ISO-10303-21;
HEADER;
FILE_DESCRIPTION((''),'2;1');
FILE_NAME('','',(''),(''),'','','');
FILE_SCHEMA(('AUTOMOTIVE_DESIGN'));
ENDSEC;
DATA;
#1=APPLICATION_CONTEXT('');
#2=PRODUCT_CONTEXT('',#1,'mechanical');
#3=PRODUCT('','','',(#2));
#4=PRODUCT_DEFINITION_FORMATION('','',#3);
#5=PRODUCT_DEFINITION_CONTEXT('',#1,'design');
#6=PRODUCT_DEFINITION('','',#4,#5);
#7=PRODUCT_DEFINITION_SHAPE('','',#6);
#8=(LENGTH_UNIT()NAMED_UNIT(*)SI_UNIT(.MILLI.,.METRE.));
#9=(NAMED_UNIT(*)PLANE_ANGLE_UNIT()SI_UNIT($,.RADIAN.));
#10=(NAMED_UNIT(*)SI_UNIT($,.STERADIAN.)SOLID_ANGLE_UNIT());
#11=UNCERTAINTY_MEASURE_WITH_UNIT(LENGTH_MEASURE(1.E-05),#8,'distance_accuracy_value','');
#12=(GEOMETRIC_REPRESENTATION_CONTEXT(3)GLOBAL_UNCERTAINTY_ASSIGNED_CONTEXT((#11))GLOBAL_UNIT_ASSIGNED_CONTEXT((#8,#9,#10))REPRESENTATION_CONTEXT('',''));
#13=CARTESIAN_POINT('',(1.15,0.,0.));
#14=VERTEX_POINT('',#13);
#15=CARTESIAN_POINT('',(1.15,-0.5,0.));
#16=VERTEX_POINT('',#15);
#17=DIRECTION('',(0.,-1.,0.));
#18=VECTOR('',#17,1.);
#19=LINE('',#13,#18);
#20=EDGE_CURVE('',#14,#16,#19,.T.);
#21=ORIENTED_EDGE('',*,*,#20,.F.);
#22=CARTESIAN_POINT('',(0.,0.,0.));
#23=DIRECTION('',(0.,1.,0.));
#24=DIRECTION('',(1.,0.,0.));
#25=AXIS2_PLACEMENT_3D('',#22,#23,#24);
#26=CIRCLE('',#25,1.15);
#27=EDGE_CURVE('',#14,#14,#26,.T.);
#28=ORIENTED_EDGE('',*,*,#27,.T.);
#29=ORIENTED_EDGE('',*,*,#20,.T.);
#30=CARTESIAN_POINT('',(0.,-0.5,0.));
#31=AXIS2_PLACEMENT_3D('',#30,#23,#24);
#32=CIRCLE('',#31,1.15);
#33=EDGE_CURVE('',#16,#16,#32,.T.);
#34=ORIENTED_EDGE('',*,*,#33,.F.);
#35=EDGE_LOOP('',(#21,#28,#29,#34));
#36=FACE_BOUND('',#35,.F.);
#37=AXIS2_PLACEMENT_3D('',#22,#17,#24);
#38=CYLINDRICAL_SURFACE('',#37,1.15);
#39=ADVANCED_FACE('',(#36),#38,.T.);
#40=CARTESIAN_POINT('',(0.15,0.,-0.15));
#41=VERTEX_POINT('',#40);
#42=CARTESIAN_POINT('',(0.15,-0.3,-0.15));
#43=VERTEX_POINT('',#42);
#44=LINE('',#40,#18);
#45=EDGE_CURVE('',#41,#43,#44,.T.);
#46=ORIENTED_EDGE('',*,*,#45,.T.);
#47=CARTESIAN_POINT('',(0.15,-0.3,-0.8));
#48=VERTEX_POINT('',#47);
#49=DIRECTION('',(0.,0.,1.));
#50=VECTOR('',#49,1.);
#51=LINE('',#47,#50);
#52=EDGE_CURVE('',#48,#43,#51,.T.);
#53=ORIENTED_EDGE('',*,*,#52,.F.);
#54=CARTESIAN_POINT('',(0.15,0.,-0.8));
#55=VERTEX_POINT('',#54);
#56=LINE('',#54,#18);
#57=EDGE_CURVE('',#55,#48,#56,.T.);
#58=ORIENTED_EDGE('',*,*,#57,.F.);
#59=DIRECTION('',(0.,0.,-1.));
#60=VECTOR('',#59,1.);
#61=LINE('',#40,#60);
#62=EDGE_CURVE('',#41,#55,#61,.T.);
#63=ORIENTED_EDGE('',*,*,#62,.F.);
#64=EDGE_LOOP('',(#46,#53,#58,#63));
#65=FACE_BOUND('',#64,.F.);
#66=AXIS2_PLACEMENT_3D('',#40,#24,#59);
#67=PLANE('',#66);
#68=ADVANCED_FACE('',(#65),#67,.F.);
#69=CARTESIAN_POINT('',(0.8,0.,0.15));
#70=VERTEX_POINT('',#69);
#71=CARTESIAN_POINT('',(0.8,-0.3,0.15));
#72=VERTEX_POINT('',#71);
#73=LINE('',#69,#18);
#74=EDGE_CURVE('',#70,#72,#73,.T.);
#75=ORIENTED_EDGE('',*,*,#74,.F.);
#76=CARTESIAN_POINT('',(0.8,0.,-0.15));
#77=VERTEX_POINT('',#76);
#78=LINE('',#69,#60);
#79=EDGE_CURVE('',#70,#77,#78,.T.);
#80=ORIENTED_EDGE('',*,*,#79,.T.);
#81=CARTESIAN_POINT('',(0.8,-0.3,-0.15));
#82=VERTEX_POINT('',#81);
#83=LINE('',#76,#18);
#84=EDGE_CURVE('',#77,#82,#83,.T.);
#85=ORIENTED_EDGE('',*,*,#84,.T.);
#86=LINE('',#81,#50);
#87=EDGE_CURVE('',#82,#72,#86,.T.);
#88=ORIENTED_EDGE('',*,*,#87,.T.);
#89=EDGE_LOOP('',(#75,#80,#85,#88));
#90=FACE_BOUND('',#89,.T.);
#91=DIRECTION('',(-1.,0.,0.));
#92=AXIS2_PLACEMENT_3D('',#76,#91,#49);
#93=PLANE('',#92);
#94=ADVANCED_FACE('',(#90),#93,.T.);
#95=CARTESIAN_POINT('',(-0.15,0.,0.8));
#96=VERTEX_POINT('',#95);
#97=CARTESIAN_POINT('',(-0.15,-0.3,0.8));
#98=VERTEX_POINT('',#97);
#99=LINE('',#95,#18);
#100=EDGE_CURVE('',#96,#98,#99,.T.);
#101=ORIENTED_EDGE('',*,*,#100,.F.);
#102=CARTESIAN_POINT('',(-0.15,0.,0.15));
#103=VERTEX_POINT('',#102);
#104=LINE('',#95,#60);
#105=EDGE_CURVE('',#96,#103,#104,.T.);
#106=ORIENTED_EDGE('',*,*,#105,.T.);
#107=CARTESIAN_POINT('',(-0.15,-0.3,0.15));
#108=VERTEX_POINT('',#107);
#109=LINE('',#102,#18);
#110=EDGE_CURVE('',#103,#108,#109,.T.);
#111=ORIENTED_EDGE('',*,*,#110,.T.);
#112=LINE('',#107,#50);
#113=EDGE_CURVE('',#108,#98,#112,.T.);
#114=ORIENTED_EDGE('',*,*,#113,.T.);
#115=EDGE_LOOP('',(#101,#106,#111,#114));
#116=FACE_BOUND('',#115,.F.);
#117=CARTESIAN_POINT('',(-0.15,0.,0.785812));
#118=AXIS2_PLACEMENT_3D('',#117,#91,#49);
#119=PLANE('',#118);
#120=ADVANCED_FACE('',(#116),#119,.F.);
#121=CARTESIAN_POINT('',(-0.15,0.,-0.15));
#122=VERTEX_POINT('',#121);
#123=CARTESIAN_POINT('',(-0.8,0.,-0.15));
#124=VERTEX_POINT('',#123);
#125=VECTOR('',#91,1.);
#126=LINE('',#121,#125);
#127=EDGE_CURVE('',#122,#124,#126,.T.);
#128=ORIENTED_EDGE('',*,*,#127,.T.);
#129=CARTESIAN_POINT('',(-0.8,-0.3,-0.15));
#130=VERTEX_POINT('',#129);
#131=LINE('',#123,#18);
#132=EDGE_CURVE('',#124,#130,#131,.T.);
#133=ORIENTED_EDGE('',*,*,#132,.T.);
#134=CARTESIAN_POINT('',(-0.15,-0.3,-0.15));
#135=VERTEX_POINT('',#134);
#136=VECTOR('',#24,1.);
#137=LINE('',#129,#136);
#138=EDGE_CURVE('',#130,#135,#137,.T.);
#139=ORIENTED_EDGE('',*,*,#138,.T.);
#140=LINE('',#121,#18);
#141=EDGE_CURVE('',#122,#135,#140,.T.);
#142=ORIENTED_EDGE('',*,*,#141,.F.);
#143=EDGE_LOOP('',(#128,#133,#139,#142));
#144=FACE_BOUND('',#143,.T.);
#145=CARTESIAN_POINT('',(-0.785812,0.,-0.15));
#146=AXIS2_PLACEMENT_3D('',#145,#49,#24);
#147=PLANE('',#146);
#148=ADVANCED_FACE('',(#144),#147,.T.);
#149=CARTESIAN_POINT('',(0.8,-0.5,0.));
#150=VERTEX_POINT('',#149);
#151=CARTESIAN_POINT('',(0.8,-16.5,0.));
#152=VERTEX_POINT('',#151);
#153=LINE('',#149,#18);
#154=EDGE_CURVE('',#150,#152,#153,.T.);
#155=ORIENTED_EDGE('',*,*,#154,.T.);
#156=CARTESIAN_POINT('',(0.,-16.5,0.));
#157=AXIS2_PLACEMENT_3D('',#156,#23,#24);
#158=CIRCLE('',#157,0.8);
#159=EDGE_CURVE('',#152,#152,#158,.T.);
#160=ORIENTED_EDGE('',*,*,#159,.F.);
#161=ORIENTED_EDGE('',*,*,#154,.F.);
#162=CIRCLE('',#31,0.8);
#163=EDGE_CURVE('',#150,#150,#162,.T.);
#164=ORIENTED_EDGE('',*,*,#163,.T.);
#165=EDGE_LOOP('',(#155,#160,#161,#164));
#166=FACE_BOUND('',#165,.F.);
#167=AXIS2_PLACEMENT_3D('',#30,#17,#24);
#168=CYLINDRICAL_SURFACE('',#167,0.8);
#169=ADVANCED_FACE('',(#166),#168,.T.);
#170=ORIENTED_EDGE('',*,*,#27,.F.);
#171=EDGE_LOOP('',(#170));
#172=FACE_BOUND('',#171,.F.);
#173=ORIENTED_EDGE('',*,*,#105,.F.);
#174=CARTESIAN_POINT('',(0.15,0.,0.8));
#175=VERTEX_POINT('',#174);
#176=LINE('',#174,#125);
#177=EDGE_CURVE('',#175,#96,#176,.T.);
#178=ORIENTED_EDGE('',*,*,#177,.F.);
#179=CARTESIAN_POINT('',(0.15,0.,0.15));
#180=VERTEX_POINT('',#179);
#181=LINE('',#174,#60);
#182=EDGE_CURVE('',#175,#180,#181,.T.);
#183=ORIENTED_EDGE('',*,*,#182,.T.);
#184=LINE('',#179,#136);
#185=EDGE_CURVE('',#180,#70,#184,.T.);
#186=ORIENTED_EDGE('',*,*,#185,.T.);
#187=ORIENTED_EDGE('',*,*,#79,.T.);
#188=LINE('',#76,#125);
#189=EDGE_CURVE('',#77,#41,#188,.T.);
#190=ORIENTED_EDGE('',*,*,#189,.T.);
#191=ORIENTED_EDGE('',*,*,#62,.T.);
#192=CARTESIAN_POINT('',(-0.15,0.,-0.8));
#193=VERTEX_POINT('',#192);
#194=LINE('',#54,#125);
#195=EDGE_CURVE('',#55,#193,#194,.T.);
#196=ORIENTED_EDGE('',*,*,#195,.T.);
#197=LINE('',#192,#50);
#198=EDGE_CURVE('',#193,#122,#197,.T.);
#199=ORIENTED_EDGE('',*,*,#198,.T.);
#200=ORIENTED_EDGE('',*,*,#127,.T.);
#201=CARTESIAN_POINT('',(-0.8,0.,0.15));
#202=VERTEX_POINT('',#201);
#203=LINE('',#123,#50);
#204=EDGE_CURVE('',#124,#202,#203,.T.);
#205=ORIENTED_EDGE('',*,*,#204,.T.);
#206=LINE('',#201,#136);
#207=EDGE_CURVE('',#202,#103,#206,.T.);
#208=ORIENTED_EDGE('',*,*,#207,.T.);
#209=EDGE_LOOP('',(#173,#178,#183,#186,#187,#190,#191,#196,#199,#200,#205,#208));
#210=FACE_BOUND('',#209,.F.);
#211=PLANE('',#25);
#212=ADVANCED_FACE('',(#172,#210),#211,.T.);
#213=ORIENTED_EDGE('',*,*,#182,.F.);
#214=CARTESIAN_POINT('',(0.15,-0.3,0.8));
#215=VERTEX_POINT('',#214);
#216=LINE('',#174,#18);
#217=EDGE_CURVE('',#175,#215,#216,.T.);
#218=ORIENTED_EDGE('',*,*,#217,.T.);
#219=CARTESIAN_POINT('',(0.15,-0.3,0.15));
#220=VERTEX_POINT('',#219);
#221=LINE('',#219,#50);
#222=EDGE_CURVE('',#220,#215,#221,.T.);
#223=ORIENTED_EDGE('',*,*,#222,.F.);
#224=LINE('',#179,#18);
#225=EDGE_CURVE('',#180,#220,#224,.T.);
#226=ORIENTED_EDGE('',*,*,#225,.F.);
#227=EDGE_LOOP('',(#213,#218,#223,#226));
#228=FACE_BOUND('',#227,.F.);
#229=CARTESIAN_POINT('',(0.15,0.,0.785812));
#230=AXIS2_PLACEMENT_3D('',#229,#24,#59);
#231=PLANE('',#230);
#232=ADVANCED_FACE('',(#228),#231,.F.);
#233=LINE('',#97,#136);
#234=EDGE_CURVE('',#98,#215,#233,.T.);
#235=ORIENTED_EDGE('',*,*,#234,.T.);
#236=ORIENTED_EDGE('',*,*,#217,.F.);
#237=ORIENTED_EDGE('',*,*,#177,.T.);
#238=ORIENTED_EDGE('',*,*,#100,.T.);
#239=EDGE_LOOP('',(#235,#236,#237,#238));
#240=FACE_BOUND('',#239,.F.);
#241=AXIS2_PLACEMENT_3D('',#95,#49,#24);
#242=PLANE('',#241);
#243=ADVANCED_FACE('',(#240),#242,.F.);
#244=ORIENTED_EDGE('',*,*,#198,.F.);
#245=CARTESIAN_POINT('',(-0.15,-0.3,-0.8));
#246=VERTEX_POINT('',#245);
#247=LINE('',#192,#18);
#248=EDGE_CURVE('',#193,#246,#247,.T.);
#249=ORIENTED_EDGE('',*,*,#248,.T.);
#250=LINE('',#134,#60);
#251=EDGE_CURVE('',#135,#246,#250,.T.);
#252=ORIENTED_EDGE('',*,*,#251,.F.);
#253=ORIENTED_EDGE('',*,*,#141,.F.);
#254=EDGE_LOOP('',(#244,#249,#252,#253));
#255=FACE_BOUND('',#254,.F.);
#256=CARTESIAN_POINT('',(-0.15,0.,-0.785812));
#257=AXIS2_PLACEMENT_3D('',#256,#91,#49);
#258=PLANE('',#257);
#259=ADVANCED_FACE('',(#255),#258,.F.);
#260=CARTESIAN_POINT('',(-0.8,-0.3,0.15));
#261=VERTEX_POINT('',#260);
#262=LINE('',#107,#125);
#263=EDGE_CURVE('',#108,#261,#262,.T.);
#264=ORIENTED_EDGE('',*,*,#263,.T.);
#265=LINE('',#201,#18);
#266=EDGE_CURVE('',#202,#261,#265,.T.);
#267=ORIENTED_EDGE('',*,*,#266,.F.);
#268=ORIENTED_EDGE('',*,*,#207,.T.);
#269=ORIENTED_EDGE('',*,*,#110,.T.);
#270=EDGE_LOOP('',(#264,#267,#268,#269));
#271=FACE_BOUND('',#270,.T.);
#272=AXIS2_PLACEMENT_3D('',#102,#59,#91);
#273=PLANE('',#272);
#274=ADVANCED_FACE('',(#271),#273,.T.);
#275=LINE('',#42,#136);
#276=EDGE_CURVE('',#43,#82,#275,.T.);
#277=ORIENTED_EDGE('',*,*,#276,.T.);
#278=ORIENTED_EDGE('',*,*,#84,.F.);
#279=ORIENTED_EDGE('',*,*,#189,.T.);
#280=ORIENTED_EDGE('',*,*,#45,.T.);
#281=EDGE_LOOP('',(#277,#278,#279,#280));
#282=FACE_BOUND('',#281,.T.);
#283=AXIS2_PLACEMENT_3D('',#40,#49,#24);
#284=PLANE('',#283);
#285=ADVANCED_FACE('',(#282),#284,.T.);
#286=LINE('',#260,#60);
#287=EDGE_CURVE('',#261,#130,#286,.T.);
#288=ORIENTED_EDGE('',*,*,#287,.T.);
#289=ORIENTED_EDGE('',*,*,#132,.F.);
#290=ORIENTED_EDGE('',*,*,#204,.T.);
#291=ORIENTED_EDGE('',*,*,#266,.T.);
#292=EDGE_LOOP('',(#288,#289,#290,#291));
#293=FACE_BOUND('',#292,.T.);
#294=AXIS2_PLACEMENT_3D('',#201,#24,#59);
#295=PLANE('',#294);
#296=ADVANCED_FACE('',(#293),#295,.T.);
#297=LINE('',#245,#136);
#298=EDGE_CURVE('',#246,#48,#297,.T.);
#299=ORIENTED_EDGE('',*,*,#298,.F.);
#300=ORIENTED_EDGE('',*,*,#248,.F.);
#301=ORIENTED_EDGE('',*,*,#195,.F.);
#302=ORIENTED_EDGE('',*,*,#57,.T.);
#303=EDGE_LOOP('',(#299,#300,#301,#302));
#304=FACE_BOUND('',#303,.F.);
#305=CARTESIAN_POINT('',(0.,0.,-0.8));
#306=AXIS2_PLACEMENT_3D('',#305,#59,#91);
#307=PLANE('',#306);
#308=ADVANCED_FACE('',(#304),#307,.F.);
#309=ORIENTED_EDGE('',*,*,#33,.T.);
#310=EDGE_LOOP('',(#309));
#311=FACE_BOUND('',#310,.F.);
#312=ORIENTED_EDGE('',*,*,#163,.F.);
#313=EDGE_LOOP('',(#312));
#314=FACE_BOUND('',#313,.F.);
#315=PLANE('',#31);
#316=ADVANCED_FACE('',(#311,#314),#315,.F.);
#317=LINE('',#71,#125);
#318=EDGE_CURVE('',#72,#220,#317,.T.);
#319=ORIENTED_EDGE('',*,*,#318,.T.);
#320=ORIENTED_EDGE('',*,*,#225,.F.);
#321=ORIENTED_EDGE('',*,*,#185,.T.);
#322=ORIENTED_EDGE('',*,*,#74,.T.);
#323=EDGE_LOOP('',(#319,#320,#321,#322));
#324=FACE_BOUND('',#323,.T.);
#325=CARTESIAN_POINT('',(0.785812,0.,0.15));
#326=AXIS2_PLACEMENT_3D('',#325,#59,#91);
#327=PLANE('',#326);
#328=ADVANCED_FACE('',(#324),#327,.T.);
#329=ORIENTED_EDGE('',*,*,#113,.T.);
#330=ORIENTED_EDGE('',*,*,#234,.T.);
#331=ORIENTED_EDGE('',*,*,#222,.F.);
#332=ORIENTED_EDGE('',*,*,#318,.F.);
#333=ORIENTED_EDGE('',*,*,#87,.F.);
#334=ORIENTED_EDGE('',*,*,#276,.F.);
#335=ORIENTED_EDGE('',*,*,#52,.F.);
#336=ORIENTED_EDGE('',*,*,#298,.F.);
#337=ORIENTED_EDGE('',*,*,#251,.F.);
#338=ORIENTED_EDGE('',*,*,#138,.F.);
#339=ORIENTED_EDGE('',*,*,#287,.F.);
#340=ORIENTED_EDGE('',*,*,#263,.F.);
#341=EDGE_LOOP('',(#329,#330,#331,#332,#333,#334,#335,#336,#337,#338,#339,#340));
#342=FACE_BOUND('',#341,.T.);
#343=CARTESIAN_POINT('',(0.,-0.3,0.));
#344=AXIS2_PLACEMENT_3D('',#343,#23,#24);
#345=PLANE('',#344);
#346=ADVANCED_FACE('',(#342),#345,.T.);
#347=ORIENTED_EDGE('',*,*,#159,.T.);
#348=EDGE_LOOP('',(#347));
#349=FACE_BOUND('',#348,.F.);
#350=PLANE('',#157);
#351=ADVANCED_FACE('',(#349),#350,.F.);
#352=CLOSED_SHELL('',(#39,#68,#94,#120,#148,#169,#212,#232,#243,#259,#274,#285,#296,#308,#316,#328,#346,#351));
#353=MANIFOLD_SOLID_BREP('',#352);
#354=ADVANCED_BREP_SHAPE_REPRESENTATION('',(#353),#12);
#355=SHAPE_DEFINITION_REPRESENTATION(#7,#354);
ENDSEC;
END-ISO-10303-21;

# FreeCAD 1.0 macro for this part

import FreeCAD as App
import Part
import Sketcher
Q = App.Units.Quantity

doc = App.newDocument("Part")
params = doc.addObject("Spreadsheet::Sheet", "Params")
for row, (alias, value) in enumerate([
    ("sketch1_height", "16 mm"),
    ("sketch1_width", "0.8 mm"),
    ("sketch1_height2", "0.5 mm"),
    ("sketch1_width2", "1.15 mm"),
    ("revolution_angle", "360 deg"),
    ("sketch2_width", "0.3 mm"),
    ("pocket1_length", "0.3 mm"),
], start=1):
    params.set(f"A{row}", alias)
    params.set(f"B{row}", "=" + value)
    params.setAlias(f"B{row}", alias)

body = doc.addObject("PartDesign::Body", "Body")

sketch1 = body.newObject("Sketcher::SketchObject", "Sketch")
sketch1.AttachmentSupport = (doc.getObject("XY_Plane"), [""])
sketch1.MapMode = "FlatFace"
sketch1.addGeometry(Part.LineSegment(App.Vector(1.15, 0, 0), App.Vector(0, 0, 0)), False)
sketch1.addGeometry(Part.LineSegment(App.Vector(0, 0, 0), App.Vector(0, -16.5, 0)), False)
sketch1.addGeometry(Part.LineSegment(App.Vector(0, -16.5, 0), App.Vector(0.8, -16.5, 0)), False)
sketch1.addGeometry(Part.LineSegment(App.Vector(0.8, -16.5, 0), App.Vector(0.8, -0.5, 0)), False)
sketch1.addGeometry(Part.LineSegment(App.Vector(0.8, -0.5, 0), App.Vector(1.15, -0.5, 0)), False)
sketch1.addGeometry(Part.LineSegment(App.Vector(1.15, -0.5, 0), App.Vector(1.15, 0, 0)), False)
sketch1.addConstraint(Sketcher.Constraint("Coincident", 0, 2, 1, 1))
sketch1.addConstraint(Sketcher.Constraint("Coincident", 1, 2, 2, 1))
sketch1.addConstraint(Sketcher.Constraint("Coincident", 2, 2, 3, 1))
sketch1.addConstraint(Sketcher.Constraint("Coincident", 3, 2, 4, 1))
sketch1.addConstraint(Sketcher.Constraint("Coincident", 4, 2, 5, 1))
sketch1.addConstraint(Sketcher.Constraint("Coincident", 5, 2, 0, 1))
sketch1.addConstraint(Sketcher.Constraint("Horizontal", 0))
sketch1.addConstraint(Sketcher.Constraint("Vertical", 1))
sketch1.addConstraint(Sketcher.Constraint("Horizontal", 2))
sketch1.addConstraint(Sketcher.Constraint("Vertical", 3))
sketch1.addConstraint(Sketcher.Constraint("Horizontal", 4))
sketch1.addConstraint(Sketcher.Constraint("Vertical", 5))
sketch1.addConstraint(Sketcher.Constraint("Coincident", 0, 2, -1, 1))
sketch1.addConstraint(Sketcher.Constraint("DistanceY", 3, 1, 3, 2, Q("16 mm")))
sketch1.addConstraint(Sketcher.Constraint("DistanceX", 2, 1, 2, 2, Q("0.8 mm")))
sketch1.addConstraint(Sketcher.Constraint("DistanceY", 5, 1, 5, 2, Q("0.5 mm")))
sketch1.addConstraint(Sketcher.Constraint("DistanceX", 0, 2, 0, 1, Q("1.15 mm")))
sketch1.setExpression("Constraints[13]", "Params.sketch1_height")
sketch1.setExpression("Constraints[14]", "Params.sketch1_width")
sketch1.setExpression("Constraints[15]", "Params.sketch1_height2")
sketch1.setExpression("Constraints[16]", "Params.sketch1_width2")
revolution = body.newObject("PartDesign::Revolution", "Revolution")
revolution.Profile = sketch1
revolution.ReferenceAxis = (sketch1, ["V_Axis"])
revolution.setExpression("Angle", "Params.revolution_angle")

sketch2 = body.newObject("Sketcher::SketchObject", "Sketch001")
sketch2.AttachmentSupport = (doc.getObject("XZ_Plane"), [""])
sketch2.MapMode = "FlatFace"
sketch2.addGeometry(Part.LineSegment(App.Vector(-0.15, 0.8, 0), App.Vector(0.15, 0.8, 0)), False)
sketch2.addGeometry(Part.LineSegment(App.Vector(0.15, 0.8, 0), App.Vector(0.15, 0.15, 0)), False)
sketch2.addGeometry(Part.LineSegment(App.Vector(0.15, 0.15, 0), App.Vector(0.8, 0.15, 0)), False)
sketch2.addGeometry(Part.LineSegment(App.Vector(0.8, 0.15, 0), App.Vector(0.8, -0.15, 0)), False)
sketch2.addGeometry(Part.LineSegment(App.Vector(0.8, -0.15, 0), App.Vector(0.15, -0.15, 0)), False)
sketch2.addGeometry(Part.LineSegment(App.Vector(0.15, -0.15, 0), App.Vector(0.15, -0.8, 0)), False)
sketch2.addGeometry(Part.LineSegment(App.Vector(0.15, -0.8, 0), App.Vector(-0.15, -0.8, 0)), False)
sketch2.addGeometry(Part.LineSegment(App.Vector(-0.15, -0.8, 0), App.Vector(-0.15, -0.15, 0)), False)
sketch2.addGeometry(Part.LineSegment(App.Vector(-0.15, -0.15, 0), App.Vector(-0.8, -0.15, 0)), False)
sketch2.addGeometry(Part.LineSegment(App.Vector(-0.8, -0.15, 0), App.Vector(-0.8, 0.15, 0)), False)
sketch2.addGeometry(Part.LineSegment(App.Vector(-0.8, 0.15, 0), App.Vector(-0.15, 0.15, 0)), False)
sketch2.addGeometry(Part.LineSegment(App.Vector(-0.15, 0.15, 0), App.Vector(-0.15, 0.8, 0)), False)
sketch2.addConstraint(Sketcher.Constraint("Coincident", 0, 2, 1, 1))
sketch2.addConstraint(Sketcher.Constraint("Coincident", 1, 2, 2, 1))
sketch2.addConstraint(Sketcher.Constraint("Coincident", 2, 2, 3, 1))
sketch2.addConstraint(Sketcher.Constraint("Coincident", 3, 2, 4, 1))
sketch2.addConstraint(Sketcher.Constraint("Coincident", 4, 2, 5, 1))
sketch2.addConstraint(Sketcher.Constraint("Coincident", 5, 2, 6, 1))
sketch2.addConstraint(Sketcher.Constraint("Coincident", 6, 2, 7, 1))
sketch2.addConstraint(Sketcher.Constraint("Coincident", 7, 2, 8, 1))
sketch2.addConstraint(Sketcher.Constraint("Coincident", 8, 2, 9, 1))
sketch2.addConstraint(Sketcher.Constraint("Coincident", 9, 2, 10, 1))
sketch2.addConstraint(Sketcher.Constraint("Coincident", 10, 2, 11, 1))
sketch2.addConstraint(Sketcher.Constraint("Coincident", 11, 2, 0, 1))
sketch2.addConstraint(Sketcher.Constraint("Horizontal", 0))
sketch2.addConstraint(Sketcher.Constraint("Vertical", 1))
sketch2.addConstraint(Sketcher.Constraint("Horizontal", 2))
sketch2.addConstraint(Sketcher.Constraint("Vertical", 3))
sketch2.addConstraint(Sketcher.Constraint("Horizontal", 4))
sketch2.addConstraint(Sketcher.Constraint("Vertical", 5))
sketch2.addConstraint(Sketcher.Constraint("Horizontal", 6))
sketch2.addConstraint(Sketcher.Constraint("Vertical", 7))
sketch2.addConstraint(Sketcher.Constraint("Horizontal", 8))
sketch2.addConstraint(Sketcher.Constraint("Vertical", 9))
sketch2.addConstraint(Sketcher.Constraint("Horizontal", 10))
sketch2.addConstraint(Sketcher.Constraint("Vertical", 11))
sketch2.addConstraint(Sketcher.Constraint("Symmetric", 0, 2, 6, 2, -1, 1))
sketch2.addConstraint(Sketcher.Constraint("Symmetric", 2, 2, 8, 2, -1, 1))
sketch2.addConstraint(Sketcher.Constraint("Symmetric", 4, 2, 10, 2, -1, 1))
sketch2.addConstraint(Sketcher.Constraint("Symmetric", 4, 2, 7, 2, -2))
sketch2.addConstraint(Sketcher.Constraint("Equal", 10, 1))
sketch2.addConstraint(Sketcher.Constraint("Equal", 6, 3))
sketch2.addConstraint(Sketcher.Constraint("DistanceX", 0, 1, 0, 2, Q("0.3 mm")))
sketch2.addConstraint(Sketcher.Constraint("DistanceY", 5, 2, 0, 2, Q("1.6 mm")))
sketch2.setExpression("Constraints[30]", "Params.sketch2_width")
pocket1 = body.newObject("PartDesign::Pocket", "Pocket")
pocket1.Profile = sketch2
pocket1.setExpression("Length", "Params.pocket1_length")
pocket1.Reversed = True

doc.recompute()
